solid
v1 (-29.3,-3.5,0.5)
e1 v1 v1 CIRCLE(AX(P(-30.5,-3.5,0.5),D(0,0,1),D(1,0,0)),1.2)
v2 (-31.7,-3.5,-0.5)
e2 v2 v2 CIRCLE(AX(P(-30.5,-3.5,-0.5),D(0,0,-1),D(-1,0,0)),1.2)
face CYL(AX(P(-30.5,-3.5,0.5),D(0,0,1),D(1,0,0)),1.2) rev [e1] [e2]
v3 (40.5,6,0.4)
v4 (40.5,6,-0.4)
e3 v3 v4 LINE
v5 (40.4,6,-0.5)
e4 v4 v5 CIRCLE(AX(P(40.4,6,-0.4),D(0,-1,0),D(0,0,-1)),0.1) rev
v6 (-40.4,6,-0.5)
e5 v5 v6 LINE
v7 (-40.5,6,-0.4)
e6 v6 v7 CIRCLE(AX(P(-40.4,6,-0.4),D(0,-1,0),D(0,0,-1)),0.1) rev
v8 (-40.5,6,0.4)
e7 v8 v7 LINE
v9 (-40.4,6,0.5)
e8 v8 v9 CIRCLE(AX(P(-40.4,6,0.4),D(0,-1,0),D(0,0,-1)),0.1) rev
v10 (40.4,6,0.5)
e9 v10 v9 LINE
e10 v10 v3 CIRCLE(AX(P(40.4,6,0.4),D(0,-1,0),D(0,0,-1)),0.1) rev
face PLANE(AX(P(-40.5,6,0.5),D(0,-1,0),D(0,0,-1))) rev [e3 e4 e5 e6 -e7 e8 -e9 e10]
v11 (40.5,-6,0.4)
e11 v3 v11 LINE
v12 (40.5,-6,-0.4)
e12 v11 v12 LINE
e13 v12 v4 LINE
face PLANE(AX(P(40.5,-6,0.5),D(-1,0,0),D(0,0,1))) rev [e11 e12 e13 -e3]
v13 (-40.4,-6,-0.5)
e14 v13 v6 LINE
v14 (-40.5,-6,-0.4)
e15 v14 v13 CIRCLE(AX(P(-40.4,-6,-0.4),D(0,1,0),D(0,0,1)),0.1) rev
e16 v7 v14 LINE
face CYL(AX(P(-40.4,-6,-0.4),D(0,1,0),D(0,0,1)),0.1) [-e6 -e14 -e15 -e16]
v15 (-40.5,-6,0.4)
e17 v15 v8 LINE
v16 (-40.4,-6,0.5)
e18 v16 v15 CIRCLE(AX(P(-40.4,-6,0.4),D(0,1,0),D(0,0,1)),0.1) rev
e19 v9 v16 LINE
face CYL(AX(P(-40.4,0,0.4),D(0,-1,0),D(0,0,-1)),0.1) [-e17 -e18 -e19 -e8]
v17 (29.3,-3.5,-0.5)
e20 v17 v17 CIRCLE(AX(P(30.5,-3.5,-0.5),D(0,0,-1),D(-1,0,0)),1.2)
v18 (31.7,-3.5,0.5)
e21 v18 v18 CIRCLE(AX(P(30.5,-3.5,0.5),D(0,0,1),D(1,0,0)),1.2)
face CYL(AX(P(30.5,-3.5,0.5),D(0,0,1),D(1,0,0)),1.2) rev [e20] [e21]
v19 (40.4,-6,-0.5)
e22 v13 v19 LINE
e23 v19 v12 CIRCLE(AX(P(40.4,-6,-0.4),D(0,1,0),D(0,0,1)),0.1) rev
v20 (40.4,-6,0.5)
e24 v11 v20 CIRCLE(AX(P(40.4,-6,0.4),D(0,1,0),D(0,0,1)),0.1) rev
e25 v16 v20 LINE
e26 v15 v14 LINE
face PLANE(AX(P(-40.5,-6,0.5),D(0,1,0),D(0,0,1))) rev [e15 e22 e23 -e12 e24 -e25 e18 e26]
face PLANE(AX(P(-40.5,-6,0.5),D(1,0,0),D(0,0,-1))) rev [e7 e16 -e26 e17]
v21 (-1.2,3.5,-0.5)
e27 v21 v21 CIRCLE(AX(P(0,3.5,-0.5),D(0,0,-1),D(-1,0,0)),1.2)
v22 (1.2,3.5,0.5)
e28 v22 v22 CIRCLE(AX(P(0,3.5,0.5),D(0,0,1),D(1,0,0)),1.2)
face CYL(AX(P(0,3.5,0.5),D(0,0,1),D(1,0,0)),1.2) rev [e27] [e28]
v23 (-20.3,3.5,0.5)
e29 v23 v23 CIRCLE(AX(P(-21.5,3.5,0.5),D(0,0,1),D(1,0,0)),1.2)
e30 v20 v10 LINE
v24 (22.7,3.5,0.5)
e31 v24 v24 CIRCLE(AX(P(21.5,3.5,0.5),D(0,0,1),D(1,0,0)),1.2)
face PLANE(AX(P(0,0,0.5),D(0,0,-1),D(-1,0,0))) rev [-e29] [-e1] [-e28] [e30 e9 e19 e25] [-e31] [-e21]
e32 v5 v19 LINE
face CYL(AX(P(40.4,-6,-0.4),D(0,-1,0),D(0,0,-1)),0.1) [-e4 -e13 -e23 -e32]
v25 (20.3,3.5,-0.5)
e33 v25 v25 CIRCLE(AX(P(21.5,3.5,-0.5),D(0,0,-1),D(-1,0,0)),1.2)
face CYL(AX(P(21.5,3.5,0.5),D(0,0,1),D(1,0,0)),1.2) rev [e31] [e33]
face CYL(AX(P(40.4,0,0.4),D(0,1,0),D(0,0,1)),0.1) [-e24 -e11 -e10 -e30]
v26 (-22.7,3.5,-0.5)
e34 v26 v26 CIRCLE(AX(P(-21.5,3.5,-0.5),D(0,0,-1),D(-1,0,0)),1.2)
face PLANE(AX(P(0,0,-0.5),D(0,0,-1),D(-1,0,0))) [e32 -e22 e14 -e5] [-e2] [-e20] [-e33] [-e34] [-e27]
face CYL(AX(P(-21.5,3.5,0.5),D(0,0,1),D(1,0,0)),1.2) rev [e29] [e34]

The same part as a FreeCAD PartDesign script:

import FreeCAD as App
import Part
import Sketcher
from FreeCAD import Vector
Q = App.Units.Quantity


def edges_at(feature, points):
    """Names of the edges that pass closest to the given points."""
    edges = feature.Shape.Edges
    near = lambda p: min(range(len(edges)), key=lambda i: edges[i].distToShape(Part.Vertex(*p))[0])
    return sorted({f"Edge{near(p) + 1}" for p in points})

doc = App.newDocument("Part")
body = doc.addObject("PartDesign::Body", "Body")

# Sketch on XY plane
sketch1 = body.newObject("Sketcher::SketchObject", "Sketch")
sketch1.AttachmentSupport = (doc.getObject("XY_Plane"), [""])
sketch1.MapMode = "FlatFace"
sketch1.addGeometry(Part.LineSegment(Vector(-40.5, 6, 0), Vector(-40.5, -6, 0)), False)
sketch1.addGeometry(Part.LineSegment(Vector(-40.5, -6, 0), Vector(40.5, -6, 0)), False)
sketch1.addGeometry(Part.LineSegment(Vector(40.5, -6, 0), Vector(40.5, 6, 0)), False)
sketch1.addGeometry(Part.LineSegment(Vector(40.5, 6, 0), Vector(-40.5, 6, 0)), False)
sketch1.addConstraint(Sketcher.Constraint("Coincident", 0, 2, 1, 1))
sketch1.addConstraint(Sketcher.Constraint("Coincident", 1, 2, 2, 1))
sketch1.addConstraint(Sketcher.Constraint("Coincident", 2, 2, 3, 1))
sketch1.addConstraint(Sketcher.Constraint("Coincident", 3, 2, 0, 1))
sketch1.addConstraint(Sketcher.Constraint("Vertical", 0))
sketch1.addConstraint(Sketcher.Constraint("Horizontal", 1))
sketch1.addConstraint(Sketcher.Constraint("Vertical", 2))
sketch1.addConstraint(Sketcher.Constraint("Horizontal", 3))
sketch1.addConstraint(Sketcher.Constraint("Symmetric", 0, 2, 2, 2, -1, 1))
sketch1.addConstraint(Sketcher.Constraint("DistanceX", 1, 1, 1, 2, Q("81 mm")))
sketch1.addConstraint(Sketcher.Constraint("DistanceY", 0, 2, 0, 1, Q("12 mm")))
pad1 = body.newObject("PartDesign::Pad", "Pad")
pad1.Profile = sketch1
pad1.Length = 1
pad1.Midplane = True

# Sketch on XY plane
sketch2 = body.newObject("Sketcher::SketchObject", "Sketch001")
sketch2.AttachmentSupport = (doc.getObject("XY_Plane"), [""])
sketch2.MapMode = "FlatFace"
sketch2.AttachmentOffset = App.Placement(Vector(0, 0, 0.5), App.Rotation())
sketch2.addGeometry(Part.Circle(Vector(-30.5, -3.5, 0), Vector(0, 0, 1), 1.2), False)
sketch2.addGeometry(Part.Circle(Vector(30.5, -3.5, 0), Vector(0, 0, 1), 1.2), False)
sketch2.addConstraint(Sketcher.Constraint("Equal", 0, 1))
sketch2.addConstraint(Sketcher.Constraint("Symmetric", 0, 3, 1, 3, -2))
sketch2.addConstraint(Sketcher.Constraint("Diameter", 0, Q("2.4 mm")))
sketch2.addConstraint(Sketcher.Constraint("DistanceX", 0, 3, 1, 3, Q("61 mm")))
sketch2.addConstraint(Sketcher.Constraint("DistanceY", 0, 3, -1, 1, Q("3.5 mm")))
doc.recompute()
hole = body.newObject("PartDesign::Hole", "Hole")
hole.Profile = sketch2
hole.ThreadType = "None"
hole.Diameter = 2.4
hole.DepthType = "Dimension"
hole.Depth = 100
hole.DrillPoint = "Angled"
hole.DrillPointAngle = 118

# Sketch on XY plane
sketch3 = body.newObject("Sketcher::SketchObject", "Sketch002")
sketch3.AttachmentSupport = (doc.getObject("XY_Plane"), [""])
sketch3.MapMode = "FlatFace"
sketch3.AttachmentOffset = App.Placement(Vector(0, 0, 0.5), App.Rotation())
sketch3.addGeometry(Part.Circle(Vector(-21.5, 3.5, 0), Vector(0, 0, 1), 1.2), False)
sketch3.addGeometry(Part.Circle(Vector(21.5, 3.5, 0), Vector(0, 0, 1), 1.2), False)
sketch3.addConstraint(Sketcher.Constraint("Equal", 0, 1))
sketch3.addConstraint(Sketcher.Constraint("Symmetric", 0, 3, 1, 3, -2))
sketch3.addConstraint(Sketcher.Constraint("Diameter", 0, Q("2.4 mm")))
sketch3.addConstraint(Sketcher.Constraint("DistanceX", 0, 3, 1, 3, Q("43 mm")))
sketch3.addConstraint(Sketcher.Constraint("DistanceY", -1, 1, 0, 3, Q("3.5 mm")))
doc.recompute()
hole2 = body.newObject("PartDesign::Hole", "Hole001")
hole2.Profile = sketch3
hole2.ThreadType = "None"
hole2.Diameter = 2.4
hole2.DepthType = "Dimension"
hole2.Depth = 100
hole2.DrillPoint = "Angled"
hole2.DrillPointAngle = 118

# Sketch on XY plane
sketch4 = body.newObject("Sketcher::SketchObject", "Sketch003")
sketch4.AttachmentSupport = (doc.getObject("XY_Plane"), [""])
sketch4.MapMode = "FlatFace"
sketch4.AttachmentOffset = App.Placement(Vector(0, 0, 0.5), App.Rotation())
sketch4.addGeometry(Part.Circle(Vector(0, 3.5, 0), Vector(0, 0, 1), 1.2), False)
sketch4.addConstraint(Sketcher.Constraint("PointOnObject", 0, 3, -2))
sketch4.addConstraint(Sketcher.Constraint("Diameter", 0, Q("2.4 mm")))
sketch4.addConstraint(Sketcher.Constraint("DistanceY", -1, 1, 0, 3, Q("3.5 mm")))
doc.recompute()
hole3 = body.newObject("PartDesign::Hole", "Hole002")
hole3.Profile = sketch4
hole3.ThreadType = "None"
hole3.Diameter = 2.4
hole3.DepthType = "Dimension"
hole3.Depth = 200
hole3.DrillPoint = "Angled"
hole3.DrillPointAngle = 118
doc.recompute()

fillet = body.newObject("PartDesign::Fillet", "Fillet")
fillet.Base = (hole3, edges_at(hole3, [
    (-40.5, 0, 0.5),
    (40.5, 0, 0.5),
    (-40.5, 0, -0.5),
    (40.5, 0, -0.5),
]))
fillet.Radius = 0.1

doc.recompute()
